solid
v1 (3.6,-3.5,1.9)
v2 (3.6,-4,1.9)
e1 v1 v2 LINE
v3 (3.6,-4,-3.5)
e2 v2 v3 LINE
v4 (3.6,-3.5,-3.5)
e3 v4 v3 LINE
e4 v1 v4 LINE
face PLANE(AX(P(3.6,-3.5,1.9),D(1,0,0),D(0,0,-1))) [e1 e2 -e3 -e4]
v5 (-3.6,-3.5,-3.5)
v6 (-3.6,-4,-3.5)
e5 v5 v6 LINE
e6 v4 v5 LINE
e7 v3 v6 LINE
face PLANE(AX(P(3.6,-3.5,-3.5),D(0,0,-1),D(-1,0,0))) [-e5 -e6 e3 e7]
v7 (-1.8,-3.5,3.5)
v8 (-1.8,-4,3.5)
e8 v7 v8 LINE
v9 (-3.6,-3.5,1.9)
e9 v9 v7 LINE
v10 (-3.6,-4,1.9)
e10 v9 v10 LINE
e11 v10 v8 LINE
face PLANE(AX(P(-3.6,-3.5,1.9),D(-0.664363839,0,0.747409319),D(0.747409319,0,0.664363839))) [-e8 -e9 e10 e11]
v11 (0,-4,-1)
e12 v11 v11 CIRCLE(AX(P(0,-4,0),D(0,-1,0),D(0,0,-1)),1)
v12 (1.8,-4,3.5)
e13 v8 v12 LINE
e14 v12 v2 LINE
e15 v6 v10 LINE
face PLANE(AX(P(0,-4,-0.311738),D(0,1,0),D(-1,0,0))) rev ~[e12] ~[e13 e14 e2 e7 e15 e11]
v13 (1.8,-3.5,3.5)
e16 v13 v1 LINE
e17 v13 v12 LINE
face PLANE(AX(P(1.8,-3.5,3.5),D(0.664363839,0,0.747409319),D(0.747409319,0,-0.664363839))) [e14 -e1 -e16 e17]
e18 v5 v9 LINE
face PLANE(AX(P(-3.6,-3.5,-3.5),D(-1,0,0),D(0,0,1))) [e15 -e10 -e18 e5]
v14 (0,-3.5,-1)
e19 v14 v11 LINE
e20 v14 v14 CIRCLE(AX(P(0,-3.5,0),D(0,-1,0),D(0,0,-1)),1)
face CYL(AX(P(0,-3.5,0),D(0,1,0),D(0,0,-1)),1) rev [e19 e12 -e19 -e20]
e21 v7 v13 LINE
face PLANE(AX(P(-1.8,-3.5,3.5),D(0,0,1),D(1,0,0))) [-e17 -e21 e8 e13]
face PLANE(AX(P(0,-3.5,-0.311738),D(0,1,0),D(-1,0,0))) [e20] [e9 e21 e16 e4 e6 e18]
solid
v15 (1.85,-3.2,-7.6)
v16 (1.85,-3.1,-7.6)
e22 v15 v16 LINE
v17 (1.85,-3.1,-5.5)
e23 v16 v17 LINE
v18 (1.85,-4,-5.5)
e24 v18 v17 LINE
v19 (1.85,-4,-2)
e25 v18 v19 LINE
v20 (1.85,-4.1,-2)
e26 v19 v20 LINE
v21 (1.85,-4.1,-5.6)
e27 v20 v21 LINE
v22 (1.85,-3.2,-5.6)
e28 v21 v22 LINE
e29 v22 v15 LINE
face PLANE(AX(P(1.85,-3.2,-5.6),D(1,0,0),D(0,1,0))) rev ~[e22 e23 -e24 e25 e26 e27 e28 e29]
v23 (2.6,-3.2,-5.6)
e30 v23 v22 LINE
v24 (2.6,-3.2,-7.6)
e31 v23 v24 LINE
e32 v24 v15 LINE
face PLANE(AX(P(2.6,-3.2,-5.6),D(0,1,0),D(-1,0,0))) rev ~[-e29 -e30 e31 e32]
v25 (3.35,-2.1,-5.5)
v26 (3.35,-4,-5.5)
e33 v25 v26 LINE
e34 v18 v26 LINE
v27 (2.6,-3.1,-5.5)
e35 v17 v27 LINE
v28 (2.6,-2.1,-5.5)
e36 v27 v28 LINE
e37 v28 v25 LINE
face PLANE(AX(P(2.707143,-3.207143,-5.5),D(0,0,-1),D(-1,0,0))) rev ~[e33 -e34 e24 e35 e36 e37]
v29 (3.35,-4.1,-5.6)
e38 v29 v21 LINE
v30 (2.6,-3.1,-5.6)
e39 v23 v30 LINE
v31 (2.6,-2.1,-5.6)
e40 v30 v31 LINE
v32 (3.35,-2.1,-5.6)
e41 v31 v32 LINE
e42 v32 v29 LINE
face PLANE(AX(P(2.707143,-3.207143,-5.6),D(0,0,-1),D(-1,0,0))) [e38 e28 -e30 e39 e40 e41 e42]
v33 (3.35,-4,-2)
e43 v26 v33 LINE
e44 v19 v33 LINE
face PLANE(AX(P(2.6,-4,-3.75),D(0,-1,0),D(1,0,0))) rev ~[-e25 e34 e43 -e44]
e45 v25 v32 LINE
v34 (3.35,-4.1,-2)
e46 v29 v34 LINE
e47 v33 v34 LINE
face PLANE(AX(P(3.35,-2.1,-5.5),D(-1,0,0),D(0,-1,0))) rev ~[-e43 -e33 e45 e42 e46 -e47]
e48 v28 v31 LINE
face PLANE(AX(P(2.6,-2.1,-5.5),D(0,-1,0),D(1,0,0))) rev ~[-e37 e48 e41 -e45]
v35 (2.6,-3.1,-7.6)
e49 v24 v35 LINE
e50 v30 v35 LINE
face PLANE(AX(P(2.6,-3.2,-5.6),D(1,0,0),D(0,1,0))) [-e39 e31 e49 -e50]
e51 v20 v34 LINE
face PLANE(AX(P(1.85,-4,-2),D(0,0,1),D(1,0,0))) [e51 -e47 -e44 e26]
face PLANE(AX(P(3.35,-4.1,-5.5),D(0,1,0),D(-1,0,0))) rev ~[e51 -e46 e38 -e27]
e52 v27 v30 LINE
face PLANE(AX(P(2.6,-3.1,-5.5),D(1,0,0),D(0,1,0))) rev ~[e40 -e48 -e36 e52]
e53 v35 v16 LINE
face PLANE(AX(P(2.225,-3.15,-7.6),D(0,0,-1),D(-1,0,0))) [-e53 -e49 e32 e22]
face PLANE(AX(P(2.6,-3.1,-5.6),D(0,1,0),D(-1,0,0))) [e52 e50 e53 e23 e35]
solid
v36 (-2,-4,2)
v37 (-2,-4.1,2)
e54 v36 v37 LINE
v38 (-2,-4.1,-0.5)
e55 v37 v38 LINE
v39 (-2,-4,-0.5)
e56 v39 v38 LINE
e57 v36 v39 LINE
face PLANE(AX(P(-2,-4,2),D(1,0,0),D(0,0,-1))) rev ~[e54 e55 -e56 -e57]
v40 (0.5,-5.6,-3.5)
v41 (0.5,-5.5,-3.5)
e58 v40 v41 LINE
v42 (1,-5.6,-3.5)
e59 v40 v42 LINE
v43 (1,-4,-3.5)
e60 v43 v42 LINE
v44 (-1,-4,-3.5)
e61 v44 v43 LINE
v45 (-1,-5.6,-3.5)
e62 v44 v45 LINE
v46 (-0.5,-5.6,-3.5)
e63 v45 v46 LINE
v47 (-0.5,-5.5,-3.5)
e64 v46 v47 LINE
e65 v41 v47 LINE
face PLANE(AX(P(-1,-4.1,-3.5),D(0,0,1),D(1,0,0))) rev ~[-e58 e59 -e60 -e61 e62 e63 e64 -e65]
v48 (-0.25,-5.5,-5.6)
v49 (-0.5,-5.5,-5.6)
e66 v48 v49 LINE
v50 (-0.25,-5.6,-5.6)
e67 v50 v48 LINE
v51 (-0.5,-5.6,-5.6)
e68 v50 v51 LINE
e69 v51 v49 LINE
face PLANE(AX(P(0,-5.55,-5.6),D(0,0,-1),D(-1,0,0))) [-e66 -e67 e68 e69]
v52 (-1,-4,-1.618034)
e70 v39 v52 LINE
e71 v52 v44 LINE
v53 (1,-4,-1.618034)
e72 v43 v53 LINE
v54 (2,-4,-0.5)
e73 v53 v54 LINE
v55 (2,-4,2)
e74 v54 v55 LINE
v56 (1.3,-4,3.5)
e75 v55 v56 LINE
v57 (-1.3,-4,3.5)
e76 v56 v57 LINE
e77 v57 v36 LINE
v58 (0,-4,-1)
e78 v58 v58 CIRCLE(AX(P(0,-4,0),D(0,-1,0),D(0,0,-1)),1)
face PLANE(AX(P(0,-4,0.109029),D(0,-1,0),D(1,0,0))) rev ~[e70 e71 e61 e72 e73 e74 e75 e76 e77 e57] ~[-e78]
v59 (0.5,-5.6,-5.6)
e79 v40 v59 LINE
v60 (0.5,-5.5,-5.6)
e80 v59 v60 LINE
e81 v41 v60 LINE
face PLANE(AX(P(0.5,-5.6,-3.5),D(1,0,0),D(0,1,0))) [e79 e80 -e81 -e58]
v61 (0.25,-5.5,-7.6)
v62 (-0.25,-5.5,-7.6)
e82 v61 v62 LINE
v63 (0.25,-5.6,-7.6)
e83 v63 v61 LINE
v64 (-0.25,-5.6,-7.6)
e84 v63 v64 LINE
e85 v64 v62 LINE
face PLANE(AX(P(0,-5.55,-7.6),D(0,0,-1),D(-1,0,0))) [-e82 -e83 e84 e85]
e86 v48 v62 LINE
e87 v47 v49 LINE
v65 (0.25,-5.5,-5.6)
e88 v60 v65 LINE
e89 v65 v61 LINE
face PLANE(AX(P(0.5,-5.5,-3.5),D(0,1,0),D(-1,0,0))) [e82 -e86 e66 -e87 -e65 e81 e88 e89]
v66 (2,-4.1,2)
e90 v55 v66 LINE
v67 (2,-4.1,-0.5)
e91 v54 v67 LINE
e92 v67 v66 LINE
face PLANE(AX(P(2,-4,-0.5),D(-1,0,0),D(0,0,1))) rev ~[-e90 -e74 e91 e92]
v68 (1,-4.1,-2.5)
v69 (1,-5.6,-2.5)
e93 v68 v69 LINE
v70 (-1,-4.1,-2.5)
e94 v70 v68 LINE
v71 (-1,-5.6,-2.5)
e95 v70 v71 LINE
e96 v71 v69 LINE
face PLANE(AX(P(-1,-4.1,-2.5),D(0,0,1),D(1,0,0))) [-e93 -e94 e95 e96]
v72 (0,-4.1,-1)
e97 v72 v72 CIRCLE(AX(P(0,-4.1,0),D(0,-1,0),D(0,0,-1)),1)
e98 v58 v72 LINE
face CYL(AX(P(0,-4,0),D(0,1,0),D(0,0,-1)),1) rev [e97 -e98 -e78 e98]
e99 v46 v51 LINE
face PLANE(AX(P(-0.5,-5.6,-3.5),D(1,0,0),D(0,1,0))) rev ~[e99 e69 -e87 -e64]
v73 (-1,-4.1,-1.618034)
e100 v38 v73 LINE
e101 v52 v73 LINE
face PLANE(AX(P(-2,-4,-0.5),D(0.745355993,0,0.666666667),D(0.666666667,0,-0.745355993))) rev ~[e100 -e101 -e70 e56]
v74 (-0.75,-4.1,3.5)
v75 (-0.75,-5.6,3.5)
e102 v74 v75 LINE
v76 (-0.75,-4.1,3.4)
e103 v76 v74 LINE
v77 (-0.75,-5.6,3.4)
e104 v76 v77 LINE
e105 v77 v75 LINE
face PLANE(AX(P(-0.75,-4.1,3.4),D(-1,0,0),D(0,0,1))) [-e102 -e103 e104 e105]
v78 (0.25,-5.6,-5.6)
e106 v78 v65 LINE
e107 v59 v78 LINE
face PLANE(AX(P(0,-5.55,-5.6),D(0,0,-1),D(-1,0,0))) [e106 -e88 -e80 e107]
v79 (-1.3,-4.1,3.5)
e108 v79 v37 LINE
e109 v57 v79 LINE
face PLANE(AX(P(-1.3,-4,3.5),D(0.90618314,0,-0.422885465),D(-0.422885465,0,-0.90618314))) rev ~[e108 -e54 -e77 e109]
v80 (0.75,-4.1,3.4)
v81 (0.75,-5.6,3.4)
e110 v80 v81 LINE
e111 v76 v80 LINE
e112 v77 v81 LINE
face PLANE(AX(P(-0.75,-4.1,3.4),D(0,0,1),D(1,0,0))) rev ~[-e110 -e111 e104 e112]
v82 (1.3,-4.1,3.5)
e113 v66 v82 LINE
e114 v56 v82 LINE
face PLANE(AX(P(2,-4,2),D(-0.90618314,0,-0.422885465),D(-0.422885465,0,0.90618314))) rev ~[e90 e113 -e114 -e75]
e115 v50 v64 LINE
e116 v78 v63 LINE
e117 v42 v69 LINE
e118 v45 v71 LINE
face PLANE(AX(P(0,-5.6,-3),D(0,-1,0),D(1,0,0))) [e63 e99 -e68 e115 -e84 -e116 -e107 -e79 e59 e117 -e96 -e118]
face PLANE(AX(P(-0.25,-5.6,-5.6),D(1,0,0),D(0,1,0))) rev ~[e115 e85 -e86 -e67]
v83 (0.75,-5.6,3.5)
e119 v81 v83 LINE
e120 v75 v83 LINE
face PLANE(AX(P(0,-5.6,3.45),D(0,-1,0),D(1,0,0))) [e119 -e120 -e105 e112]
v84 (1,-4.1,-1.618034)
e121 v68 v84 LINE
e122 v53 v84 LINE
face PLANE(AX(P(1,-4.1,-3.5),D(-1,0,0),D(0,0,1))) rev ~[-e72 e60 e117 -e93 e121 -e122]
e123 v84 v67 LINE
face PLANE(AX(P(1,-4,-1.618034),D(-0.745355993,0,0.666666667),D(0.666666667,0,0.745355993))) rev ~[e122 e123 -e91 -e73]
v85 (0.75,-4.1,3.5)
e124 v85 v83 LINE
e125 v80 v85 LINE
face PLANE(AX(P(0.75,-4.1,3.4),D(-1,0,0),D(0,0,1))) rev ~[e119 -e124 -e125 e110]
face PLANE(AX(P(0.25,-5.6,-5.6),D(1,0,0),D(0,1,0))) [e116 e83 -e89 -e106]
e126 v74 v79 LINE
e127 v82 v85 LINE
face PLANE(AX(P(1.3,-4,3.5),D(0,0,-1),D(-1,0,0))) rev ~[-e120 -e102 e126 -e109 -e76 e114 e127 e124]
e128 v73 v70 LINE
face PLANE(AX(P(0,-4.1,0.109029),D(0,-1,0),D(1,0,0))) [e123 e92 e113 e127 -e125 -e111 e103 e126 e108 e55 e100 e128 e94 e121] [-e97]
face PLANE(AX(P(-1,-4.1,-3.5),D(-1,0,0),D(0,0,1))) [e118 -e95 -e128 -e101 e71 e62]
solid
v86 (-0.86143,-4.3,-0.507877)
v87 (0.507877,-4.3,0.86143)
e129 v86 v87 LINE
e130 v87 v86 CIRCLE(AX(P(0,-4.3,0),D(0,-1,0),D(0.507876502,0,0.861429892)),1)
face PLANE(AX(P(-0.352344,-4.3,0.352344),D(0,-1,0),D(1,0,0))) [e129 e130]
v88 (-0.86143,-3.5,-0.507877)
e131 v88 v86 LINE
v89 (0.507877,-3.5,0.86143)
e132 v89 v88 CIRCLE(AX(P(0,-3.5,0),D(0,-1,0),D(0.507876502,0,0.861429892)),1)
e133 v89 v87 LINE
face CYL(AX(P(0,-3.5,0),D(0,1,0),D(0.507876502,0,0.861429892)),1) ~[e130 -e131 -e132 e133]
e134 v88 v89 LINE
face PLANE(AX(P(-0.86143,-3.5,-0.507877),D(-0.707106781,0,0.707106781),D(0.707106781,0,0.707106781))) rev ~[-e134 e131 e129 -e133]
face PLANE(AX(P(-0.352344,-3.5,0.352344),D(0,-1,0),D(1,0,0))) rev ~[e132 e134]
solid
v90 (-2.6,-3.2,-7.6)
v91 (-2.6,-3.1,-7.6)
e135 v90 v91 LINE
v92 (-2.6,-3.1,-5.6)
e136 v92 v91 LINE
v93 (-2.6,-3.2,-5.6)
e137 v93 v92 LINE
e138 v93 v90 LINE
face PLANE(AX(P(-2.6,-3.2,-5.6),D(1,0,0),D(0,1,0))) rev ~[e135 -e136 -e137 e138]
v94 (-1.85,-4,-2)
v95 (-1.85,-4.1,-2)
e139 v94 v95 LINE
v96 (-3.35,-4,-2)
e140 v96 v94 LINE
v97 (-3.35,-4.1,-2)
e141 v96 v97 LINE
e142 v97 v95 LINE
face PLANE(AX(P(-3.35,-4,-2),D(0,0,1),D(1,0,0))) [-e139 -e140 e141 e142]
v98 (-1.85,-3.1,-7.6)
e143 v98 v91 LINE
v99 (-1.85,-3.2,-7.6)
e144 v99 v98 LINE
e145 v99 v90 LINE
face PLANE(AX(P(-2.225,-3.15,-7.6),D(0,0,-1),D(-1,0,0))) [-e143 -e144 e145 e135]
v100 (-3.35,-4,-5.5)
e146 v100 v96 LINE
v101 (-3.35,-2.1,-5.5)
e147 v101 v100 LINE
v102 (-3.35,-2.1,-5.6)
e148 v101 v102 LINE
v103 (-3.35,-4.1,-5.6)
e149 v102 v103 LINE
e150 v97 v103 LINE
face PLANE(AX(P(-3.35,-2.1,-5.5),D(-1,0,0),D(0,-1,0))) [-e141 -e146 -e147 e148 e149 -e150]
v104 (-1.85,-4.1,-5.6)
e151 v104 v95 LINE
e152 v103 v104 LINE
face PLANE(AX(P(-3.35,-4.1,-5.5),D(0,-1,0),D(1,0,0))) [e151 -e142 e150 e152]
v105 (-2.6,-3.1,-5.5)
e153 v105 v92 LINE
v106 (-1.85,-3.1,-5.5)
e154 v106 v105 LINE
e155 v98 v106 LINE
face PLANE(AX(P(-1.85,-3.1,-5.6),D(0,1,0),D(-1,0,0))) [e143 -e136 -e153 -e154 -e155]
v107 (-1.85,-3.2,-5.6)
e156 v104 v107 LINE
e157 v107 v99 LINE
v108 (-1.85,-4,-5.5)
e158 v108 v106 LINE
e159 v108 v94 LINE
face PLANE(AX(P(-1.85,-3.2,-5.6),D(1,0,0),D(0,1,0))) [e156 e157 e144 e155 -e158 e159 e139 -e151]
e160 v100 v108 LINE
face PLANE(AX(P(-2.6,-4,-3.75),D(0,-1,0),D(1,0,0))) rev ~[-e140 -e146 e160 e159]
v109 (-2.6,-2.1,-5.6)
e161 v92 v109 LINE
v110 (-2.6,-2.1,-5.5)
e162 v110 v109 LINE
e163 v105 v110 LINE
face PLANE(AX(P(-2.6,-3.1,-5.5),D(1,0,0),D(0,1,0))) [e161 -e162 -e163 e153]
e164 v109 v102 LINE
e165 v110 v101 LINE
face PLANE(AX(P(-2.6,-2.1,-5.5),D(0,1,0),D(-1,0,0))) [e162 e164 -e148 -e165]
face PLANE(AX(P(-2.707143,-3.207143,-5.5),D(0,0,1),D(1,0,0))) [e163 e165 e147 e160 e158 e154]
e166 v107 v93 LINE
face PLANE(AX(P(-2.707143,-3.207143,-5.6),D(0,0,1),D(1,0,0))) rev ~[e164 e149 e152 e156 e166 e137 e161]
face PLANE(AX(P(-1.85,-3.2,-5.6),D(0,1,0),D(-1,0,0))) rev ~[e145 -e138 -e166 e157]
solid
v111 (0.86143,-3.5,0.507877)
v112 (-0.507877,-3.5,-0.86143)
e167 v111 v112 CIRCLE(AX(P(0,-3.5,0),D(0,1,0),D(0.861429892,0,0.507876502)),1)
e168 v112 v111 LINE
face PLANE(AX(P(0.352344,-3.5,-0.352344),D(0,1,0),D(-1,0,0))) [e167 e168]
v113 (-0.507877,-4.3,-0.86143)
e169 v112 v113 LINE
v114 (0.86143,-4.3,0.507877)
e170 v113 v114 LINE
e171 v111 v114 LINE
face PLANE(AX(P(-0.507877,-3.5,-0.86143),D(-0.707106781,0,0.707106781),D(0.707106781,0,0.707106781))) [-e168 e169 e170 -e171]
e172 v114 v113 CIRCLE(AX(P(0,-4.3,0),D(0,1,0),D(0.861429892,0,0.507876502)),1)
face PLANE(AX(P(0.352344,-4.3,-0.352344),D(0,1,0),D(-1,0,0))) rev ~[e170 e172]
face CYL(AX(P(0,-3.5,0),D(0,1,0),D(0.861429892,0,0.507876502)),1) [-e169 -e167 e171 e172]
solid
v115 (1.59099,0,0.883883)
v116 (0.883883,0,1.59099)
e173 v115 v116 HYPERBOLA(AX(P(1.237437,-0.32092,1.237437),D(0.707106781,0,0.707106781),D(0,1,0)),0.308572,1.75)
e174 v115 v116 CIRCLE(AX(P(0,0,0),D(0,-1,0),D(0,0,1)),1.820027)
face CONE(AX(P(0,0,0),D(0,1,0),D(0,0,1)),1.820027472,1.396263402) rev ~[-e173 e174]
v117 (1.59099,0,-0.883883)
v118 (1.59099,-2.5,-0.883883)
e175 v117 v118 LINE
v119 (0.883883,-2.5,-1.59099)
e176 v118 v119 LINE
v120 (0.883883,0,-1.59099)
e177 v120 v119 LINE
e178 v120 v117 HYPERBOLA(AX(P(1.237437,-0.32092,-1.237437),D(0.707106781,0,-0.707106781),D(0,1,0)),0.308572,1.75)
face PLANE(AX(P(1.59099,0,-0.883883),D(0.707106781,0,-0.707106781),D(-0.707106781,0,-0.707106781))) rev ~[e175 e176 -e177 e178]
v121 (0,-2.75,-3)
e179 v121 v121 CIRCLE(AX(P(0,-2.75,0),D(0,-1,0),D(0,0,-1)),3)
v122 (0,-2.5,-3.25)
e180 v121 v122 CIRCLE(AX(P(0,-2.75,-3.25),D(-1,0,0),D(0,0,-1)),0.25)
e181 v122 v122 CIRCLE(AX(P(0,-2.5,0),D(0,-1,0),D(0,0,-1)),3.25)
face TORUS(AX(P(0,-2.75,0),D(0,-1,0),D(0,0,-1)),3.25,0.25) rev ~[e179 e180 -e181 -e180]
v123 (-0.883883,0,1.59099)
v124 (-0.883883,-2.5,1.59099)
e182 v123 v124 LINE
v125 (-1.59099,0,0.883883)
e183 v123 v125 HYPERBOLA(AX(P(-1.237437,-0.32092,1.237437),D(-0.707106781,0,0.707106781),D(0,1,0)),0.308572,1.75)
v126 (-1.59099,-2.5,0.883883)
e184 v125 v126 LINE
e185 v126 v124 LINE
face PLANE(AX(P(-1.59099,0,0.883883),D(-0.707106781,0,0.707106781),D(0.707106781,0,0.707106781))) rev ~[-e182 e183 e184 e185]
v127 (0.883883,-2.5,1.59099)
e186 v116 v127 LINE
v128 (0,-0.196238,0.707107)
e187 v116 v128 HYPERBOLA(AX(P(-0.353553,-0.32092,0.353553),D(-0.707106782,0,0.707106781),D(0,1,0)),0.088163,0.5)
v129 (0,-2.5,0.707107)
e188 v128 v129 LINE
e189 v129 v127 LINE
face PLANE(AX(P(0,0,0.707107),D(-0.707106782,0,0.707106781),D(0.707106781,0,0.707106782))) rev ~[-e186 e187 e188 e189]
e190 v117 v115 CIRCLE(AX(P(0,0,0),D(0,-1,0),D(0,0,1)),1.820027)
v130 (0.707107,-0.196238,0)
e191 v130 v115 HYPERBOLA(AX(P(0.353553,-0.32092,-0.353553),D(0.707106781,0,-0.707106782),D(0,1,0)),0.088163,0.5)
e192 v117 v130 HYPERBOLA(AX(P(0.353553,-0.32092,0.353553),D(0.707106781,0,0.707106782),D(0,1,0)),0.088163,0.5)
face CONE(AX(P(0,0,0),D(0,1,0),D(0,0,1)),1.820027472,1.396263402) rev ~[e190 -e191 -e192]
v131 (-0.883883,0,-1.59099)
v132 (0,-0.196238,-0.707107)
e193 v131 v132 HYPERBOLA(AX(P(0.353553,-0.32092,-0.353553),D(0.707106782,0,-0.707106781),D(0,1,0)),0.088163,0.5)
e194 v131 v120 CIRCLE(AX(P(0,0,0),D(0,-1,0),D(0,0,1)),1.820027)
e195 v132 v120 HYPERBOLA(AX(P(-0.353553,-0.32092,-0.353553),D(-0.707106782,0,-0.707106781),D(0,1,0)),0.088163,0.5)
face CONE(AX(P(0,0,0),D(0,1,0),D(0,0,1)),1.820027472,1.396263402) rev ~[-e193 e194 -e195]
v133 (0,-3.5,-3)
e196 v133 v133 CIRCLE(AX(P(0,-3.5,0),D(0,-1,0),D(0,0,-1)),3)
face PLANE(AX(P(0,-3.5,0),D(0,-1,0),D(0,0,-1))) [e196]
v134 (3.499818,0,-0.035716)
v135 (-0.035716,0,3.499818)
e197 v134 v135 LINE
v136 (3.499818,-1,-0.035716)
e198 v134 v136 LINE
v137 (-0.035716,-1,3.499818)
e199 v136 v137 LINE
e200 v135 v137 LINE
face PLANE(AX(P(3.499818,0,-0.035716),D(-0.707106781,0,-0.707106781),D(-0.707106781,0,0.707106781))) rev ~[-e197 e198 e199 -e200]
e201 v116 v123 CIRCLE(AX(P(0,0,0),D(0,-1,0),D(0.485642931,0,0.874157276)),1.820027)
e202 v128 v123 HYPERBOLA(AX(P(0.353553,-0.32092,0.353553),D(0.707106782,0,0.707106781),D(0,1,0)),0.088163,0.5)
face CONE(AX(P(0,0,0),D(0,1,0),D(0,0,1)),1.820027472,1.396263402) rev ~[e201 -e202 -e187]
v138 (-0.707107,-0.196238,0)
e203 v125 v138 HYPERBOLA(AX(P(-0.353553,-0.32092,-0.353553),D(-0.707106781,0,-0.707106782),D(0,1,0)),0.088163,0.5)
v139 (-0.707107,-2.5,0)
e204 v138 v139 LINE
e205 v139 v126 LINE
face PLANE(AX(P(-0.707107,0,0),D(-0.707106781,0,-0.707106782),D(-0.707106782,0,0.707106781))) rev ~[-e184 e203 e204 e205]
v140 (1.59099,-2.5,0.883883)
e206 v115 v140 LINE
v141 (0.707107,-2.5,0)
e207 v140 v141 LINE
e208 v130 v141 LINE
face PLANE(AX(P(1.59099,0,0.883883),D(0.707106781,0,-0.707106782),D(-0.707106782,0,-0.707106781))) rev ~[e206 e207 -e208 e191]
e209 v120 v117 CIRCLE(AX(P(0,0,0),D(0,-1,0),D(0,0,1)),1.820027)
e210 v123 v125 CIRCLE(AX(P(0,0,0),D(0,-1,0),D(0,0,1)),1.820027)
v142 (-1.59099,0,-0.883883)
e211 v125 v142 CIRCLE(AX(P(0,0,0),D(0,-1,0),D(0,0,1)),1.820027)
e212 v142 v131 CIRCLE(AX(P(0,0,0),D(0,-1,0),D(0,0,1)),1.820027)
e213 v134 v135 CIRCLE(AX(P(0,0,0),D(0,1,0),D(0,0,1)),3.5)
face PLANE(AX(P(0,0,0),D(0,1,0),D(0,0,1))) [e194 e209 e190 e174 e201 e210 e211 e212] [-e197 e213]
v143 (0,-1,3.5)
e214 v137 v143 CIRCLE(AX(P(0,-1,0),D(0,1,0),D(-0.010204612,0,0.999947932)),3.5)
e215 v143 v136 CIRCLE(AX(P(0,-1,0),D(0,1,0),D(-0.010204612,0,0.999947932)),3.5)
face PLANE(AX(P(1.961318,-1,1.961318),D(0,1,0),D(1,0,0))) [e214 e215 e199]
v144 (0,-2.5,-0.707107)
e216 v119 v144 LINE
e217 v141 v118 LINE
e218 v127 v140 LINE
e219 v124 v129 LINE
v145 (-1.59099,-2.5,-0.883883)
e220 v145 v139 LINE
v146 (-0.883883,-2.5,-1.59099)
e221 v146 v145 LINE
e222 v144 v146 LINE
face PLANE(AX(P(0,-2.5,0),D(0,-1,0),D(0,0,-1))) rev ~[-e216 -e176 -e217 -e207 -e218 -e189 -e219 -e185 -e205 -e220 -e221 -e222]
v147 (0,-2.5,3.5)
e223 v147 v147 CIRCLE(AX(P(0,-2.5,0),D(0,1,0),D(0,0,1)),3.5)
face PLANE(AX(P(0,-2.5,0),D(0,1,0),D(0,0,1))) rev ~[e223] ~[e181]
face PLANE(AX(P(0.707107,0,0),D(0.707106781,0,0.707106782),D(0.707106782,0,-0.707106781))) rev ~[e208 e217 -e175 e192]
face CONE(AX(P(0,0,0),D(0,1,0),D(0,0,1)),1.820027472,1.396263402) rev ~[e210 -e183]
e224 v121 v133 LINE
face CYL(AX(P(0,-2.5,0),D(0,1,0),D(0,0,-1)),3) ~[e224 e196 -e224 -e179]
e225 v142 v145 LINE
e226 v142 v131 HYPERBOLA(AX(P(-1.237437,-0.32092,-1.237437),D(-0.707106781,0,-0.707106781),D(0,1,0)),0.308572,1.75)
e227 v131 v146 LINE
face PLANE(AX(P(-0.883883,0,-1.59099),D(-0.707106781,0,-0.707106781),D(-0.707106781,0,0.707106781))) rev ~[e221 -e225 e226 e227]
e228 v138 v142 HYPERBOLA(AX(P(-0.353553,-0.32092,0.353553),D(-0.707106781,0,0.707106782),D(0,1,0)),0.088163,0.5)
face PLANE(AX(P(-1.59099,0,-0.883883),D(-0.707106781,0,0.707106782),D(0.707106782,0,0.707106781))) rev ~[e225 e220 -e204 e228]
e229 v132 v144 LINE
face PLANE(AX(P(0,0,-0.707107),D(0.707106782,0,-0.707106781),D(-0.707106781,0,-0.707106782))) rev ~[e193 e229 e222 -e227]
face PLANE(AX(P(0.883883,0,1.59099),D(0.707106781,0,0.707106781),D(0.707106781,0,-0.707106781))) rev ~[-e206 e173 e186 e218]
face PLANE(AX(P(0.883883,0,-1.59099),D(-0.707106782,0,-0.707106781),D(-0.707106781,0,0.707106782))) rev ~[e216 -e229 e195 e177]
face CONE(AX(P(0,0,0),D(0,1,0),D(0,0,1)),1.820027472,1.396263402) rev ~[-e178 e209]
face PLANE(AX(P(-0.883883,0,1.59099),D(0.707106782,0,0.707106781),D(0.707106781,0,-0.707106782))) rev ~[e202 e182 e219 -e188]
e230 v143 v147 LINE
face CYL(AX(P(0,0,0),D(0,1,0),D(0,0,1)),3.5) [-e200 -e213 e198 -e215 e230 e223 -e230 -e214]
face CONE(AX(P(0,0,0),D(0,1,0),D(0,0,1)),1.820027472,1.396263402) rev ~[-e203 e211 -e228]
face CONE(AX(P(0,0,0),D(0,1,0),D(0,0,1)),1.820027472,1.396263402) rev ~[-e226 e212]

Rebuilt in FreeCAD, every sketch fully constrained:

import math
import FreeCAD as App
import Part
import Sketcher

V = App.Vector
Q = App.Units.Quantity


def edges_at(feature, points):
    """Names of the edges that pass closest to the given points."""
    edges = feature.Shape.Edges
    near = lambda p: min(range(len(edges)), key=lambda i: edges[i].distToShape(Part.Vertex(*p))[0])
    return sorted({f"Edge{near(p) + 1}" for p in points})


def add_polygon(sketch, points):
    """Adds a closed chain of lines whose ends are joined by coincident constraints."""
    first, n = sketch.GeometryCount, len(points)
    for a, b in zip(points, points[1:] + points[:1]):
        sketch.addGeometry(Part.LineSegment(App.Vector(*a, 0), App.Vector(*b, 0)), False)
    for i in range(n):
        sketch.addConstraint(Sketcher.Constraint("Coincident", first + i, 2, first + (i + 1) % n, 1))

doc = App.newDocument("Part")
body = doc.addObject("PartDesign::Body", "Body")

# Sketch on XZ plane
sketch1 = body.newObject("Sketcher::SketchObject", "Sketch")
sketch1.AttachmentSupport = (doc.getObject("XZ_Plane"), [""])
sketch1.MapMode = "FlatFace"
sketch1.addGeometry(Part.Circle(V(0, 0, 0), V(0, 0, 1), 3.5), False)  # 0
add_polygon(sketch1, [(0, -0.7), (0.9, -1.6), (1.6, -0.9), (0.7, 0), (1.6, 0.9), (0.9, 1.6), (0, 0.7), (-0.9, 1.6), (-1.6, 0.9), (-0.7, 0), (-1.6, -0.9), (-0.9, -1.6)])  # lines 1-12
sketch1.addConstraint(Sketcher.Constraint("Coincident", 0, 3, -1, 1))
sketch1.addConstraint(Sketcher.Constraint("Symmetric", 1, 2, 7, 2, -1, 1))
sketch1.addConstraint(Sketcher.Constraint("Symmetric", 2, 2, 8, 2, -1, 1))
sketch1.addConstraint(Sketcher.Constraint("Symmetric", 3, 2, 9, 2, -1, 1))
sketch1.addConstraint(Sketcher.Constraint("Symmetric", 4, 2, 10, 2, -1, 1))
sketch1.addConstraint(Sketcher.Constraint("Symmetric", 5, 2, 11, 2, -1, 1))
sketch1.addConstraint(Sketcher.Constraint("Symmetric", 6, 2, 12, 2, -1, 1))
sketch1.addConstraint(Sketcher.Constraint("Symmetric", 5, 2, 7, 2, -2))
sketch1.addConstraint(Sketcher.Constraint("Symmetric", 4, 2, 8, 2, -2))
sketch1.addConstraint(Sketcher.Constraint("PointOnObject", 3, 2, -1))
sketch1.addConstraint(Sketcher.Constraint("PointOnObject", 6, 2, -2))
sketch1.addConstraint(Sketcher.Constraint("Perpendicular", 1, 2))
sketch1.addConstraint(Sketcher.Constraint("Perpendicular", 2, 3))
sketch1.addConstraint(Sketcher.Constraint("Perpendicular", 3, 4))
sketch1.addConstraint(Sketcher.Constraint("Equal", 1, 3))
sketch1.addConstraint(Sketcher.Constraint("Diameter", 0, Q("7 mm")))
sketch1.addConstraint(Sketcher.Constraint("Distance", 2, Q("1 mm")))
sketch1.addConstraint(Sketcher.Constraint("Distance", 1, Q("1.25 mm")))
pad1 = body.newObject("PartDesign::Pad", "Pad")
pad1.Profile = sketch1
pad1.Length = 2.5

# Sketch on XZ plane
sketch2 = body.newObject("Sketcher::SketchObject", "Sketch001")
sketch2.AttachmentSupport = (doc.getObject("XZ_Plane"), [""])
sketch2.MapMode = "FlatFace"
sketch2.addGeometry(Part.LineSegment(V(3.5, 0, 0), V(0, 3.5, 0)), False)
sketch2.addGeometry(Part.ArcOfCircle(Part.Circle(V(0, 0, 0), V(0, 0, 1), 3.5), math.radians(-1), math.radians(91)), False)
sketch2.addConstraint(Sketcher.Constraint("Coincident", 0, 1, 1, 1))
sketch2.addConstraint(Sketcher.Constraint("Coincident", 1, 2, 0, 2))
sketch2.addConstraint(Sketcher.Constraint("Coincident", 1, 3, -1, 1))
sketch2.addConstraint(Sketcher.Constraint("Radius", 1, Q("3.5 mm")))
sketch2.addConstraint(Sketcher.Constraint("Angle", 0, Q("135 deg")))
sketch2.addConstraint(Sketcher.Constraint("Distance", 0, Q("5 mm")))
pocket1 = body.newObject("PartDesign::Pocket", "Pocket")
pocket1.Profile = sketch2
pocket1.Length = 1
pocket1.Reversed = True

# Sketch on YZ plane
sketch3 = body.newObject("Sketcher::SketchObject", "Sketch002")
sketch3.AttachmentSupport = (doc.getObject("YZ_Plane"), [""])
sketch3.MapMode = "FlatFace"
add_polygon(sketch3, [(0, 0), (0, 1.82), (-0.32, 0)])  # lines 0-2
sketch3.addConstraint(Sketcher.Constraint("Vertical", 0))
sketch3.addConstraint(Sketcher.Constraint("Horizontal", 2))
sketch3.addConstraint(Sketcher.Constraint("Coincident", 2, 2, -1, 1))
sketch3.addConstraint(Sketcher.Constraint("Angle", 1, Q("-100 deg")))
sketch3.addConstraint(Sketcher.Constraint("DistanceX", 2, 1, 2, 2, Q("0.32092 mm")))
groove = body.newObject("PartDesign::Groove", "Groove")
groove.Profile = sketch3
groove.ReferenceAxis = (sketch3, ["H_Axis"])
groove.Angle = 360

# Sketch on XZ plane
sketch4 = body.newObject("Sketcher::SketchObject", "Sketch003")
sketch4.AttachmentSupport = (doc.getObject("XZ_Plane"), [""])
sketch4.MapMode = "FlatFace"
sketch4.AttachmentOffset = App.Placement(V(0, 0, 2.5), App.Rotation())
sketch4.addGeometry(Part.Circle(V(0, 0, 0), V(0, 0, 1), 3), False)
sketch4.addConstraint(Sketcher.Constraint("Coincident", 0, 3, -1, 1))
sketch4.addConstraint(Sketcher.Constraint("Diameter", 0, Q("6 mm")))
pad2 = body.newObject("PartDesign::Pad", "Pad001")
pad2.Profile = sketch4
pad2.Length = 1
doc.recompute()

fillet = body.newObject("PartDesign::Fillet", "Fillet")
fillet.Base = (pad2, edges_at(pad2, [(0, -2.5, 3)]))
fillet.Radius = 0.25
body2 = doc.addObject("PartDesign::Body", "Body001")

# Sketch on XZ plane
sketch5 = body2.newObject("Sketcher::SketchObject", "Sketch004")
sketch5.AttachmentSupport = (doc.getObject("XZ_Plane001"), [""])
sketch5.MapMode = "FlatFace"
sketch5.AttachmentOffset = App.Placement(V(0, 0, 3.5), App.Rotation())
add_polygon(sketch5, [(3.6, 1.9), (1.8, 3.5), (-1.8, 3.5), (-3.6, 1.9), (-3.6, -3.5), (3.6, -3.5)])  # lines 0-5
sketch5.addGeometry(Part.Circle(V(0, 0, 0), V(0, 0, 1), 1), False)  # 6
sketch5.addConstraint(Sketcher.Constraint("Horizontal", 1))
sketch5.addConstraint(Sketcher.Constraint("Vertical", 3))
sketch5.addConstraint(Sketcher.Constraint("Horizontal", 4))
sketch5.addConstraint(Sketcher.Constraint("Vertical", 5))
sketch5.addConstraint(Sketcher.Constraint("Coincident", 6, 3, -1, 1))
sketch5.addConstraint(Sketcher.Constraint("Symmetric", 2, 2, 5, 2, -2))
sketch5.addConstraint(Sketcher.Constraint("Equal", 0, 2))
sketch5.addConstraint(Sketcher.Constraint("Diameter", 6, Q("2 mm")))
sketch5.addConstraint(Sketcher.Constraint("DistanceX", 1, 2, 1, 1, Q("3.6 mm")))
sketch5.addConstraint(Sketcher.Constraint("DistanceX", 4, 1, 4, 2, Q("7.2 mm")))
sketch5.addConstraint(Sketcher.Constraint("DistanceY", 3, 2, 3, 1, Q("5.4 mm")))
sketch5.addConstraint(Sketcher.Constraint("DistanceY", 3, 2, 1, 2, Q("7 mm")))
sketch5.addConstraint(Sketcher.Constraint("DistanceY", -1, 1, 0, 2, Q("3.5 mm")))
pad3 = body2.newObject("PartDesign::Pad", "Pad002")
pad3.Profile = sketch5
pad3.Length = 0.5
body3 = doc.addObject("PartDesign::Body", "Body002")

# Sketch on XZ plane
sketch6 = body3.newObject("Sketcher::SketchObject", "Sketch005")
sketch6.AttachmentSupport = (doc.getObject("XZ_Plane002"), [""])
sketch6.MapMode = "FlatFace"
sketch6.AttachmentOffset = App.Placement(V(0, 0, 4), App.Rotation())
add_polygon(sketch6, [(-1.3, 3.5), (-2, 2), (-2, -0.5), (-1, -1.6), (-1, -3.5), (1, -3.5), (1, -1.6), (2, -0.5), (2, 2), (1.3, 3.5)])  # lines 0-9
sketch6.addGeometry(Part.Circle(V(0, 0, 0), V(0, 0, 1), 1), False)  # 10
sketch6.addConstraint(Sketcher.Constraint("Vertical", 1))
sketch6.addConstraint(Sketcher.Constraint("Vertical", 3))
sketch6.addConstraint(Sketcher.Constraint("Horizontal", 4))
sketch6.addConstraint(Sketcher.Constraint("Vertical", 5))
sketch6.addConstraint(Sketcher.Constraint("Vertical", 7))
sketch6.addConstraint(Sketcher.Constraint("Horizontal", 9))
sketch6.addConstraint(Sketcher.Constraint("Coincident", 10, 3, -1, 1))
sketch6.addConstraint(Sketcher.Constraint("Symmetric", 2, 2, 5, 2, -2))
sketch6.addConstraint(Sketcher.Constraint("Symmetric", 1, 2, 6, 2, -2))
sketch6.addConstraint(Sketcher.Constraint("Horizontal", 0, 2, 7, 2))
sketch6.addConstraint(Sketcher.Constraint("Equal", 0, 8))
sketch6.addConstraint(Sketcher.Constraint("Diameter", 10, Q("2 mm")))
sketch6.addConstraint(Sketcher.Constraint("DistanceX", 4, 1, 4, 2, Q("2 mm")))
sketch6.addConstraint(Sketcher.Constraint("DistanceX", 9, 2, 9, 1, Q("2.6 mm")))
sketch6.addConstraint(Sketcher.Constraint("DistanceY", 1, 2, 1, 1, Q("2.5 mm")))
sketch6.addConstraint(Sketcher.Constraint("DistanceX", 0, 2, -1, 1, Q("2 mm")))
sketch6.addConstraint(Sketcher.Constraint("DistanceY", -1, 1, 0, 2, Q("2 mm")))
sketch6.addConstraint(Sketcher.Constraint("DistanceY", 3, 2, 1, 2, Q("3 mm")))
sketch6.addConstraint(Sketcher.Constraint("DistanceY", 6, 2, 8, 2, Q("4 mm")))
sketch6.addConstraint(Sketcher.Constraint("Distance", 2, Q("1.5 mm")))
pad4 = body3.newObject("PartDesign::Pad", "Pad003")
pad4.Profile = sketch6
pad4.Length = 0.1

# Sketch on XZ plane
sketch7 = body3.newObject("Sketcher::SketchObject", "Sketch006")
sketch7.AttachmentSupport = (doc.getObject("XZ_Plane002"), [""])
sketch7.MapMode = "FlatFace"
sketch7.AttachmentOffset = App.Placement(V(0, 0, 4.1), App.Rotation())
add_polygon(sketch7, [(-0.75, 3.5), (-0.75, 3.4), (0.75, 3.4), (0.75, 3.5)])  # lines 0-3
add_polygon(sketch7, [(-1, -2.5), (-1, -3.5), (1, -3.5), (1, -2.5)])  # lines 4-7
sketch7.addConstraint(Sketcher.Constraint("Vertical", 0))
sketch7.addConstraint(Sketcher.Constraint("Horizontal", 1))
sketch7.addConstraint(Sketcher.Constraint("Vertical", 2))
sketch7.addConstraint(Sketcher.Constraint("Horizontal", 3))
sketch7.addConstraint(Sketcher.Constraint("Vertical", 4))
sketch7.addConstraint(Sketcher.Constraint("Horizontal", 5))
sketch7.addConstraint(Sketcher.Constraint("Vertical", 6))
sketch7.addConstraint(Sketcher.Constraint("Horizontal", 7))
sketch7.addConstraint(Sketcher.Constraint("DistanceX", 5, 1, 5, 2, Q("2 mm")))
sketch7.addConstraint(Sketcher.Constraint("DistanceY", 4, 2, 4, 1, Q("1 mm")))
sketch7.addConstraint(Sketcher.Constraint("DistanceX", 1, 1, 1, 2, Q("1.5 mm")))
sketch7.addConstraint(Sketcher.Constraint("DistanceY", 0, 2, 0, 1, Q("0.1 mm")))
sketch7.addConstraint(Sketcher.Constraint("DistanceX", 4, 2, -1, 1, Q("1 mm")))
sketch7.addConstraint(Sketcher.Constraint("DistanceY", 4, 2, 3, 2, Q("7 mm")))
sketch7.addConstraint(Sketcher.Constraint("DistanceY", -1, 1, 0, 2, Q("3.4 mm")))
sketch7.addConstraint(Sketcher.Constraint("DistanceX", 0, 2, -1, 1, Q("0.75 mm")))
pad5 = body3.newObject("PartDesign::Pad", "Pad004")
pad5.Profile = sketch7
pad5.Length = 1.5

# Sketch on XY plane
sketch8 = body3.newObject("Sketcher::SketchObject", "Sketch007")
sketch8.AttachmentSupport = (doc.getObject("XY_Plane002"), [""])
sketch8.MapMode = "FlatFace"
sketch8.AttachmentOffset = App.Placement(V(0, 0, -3.5), App.Rotation())
add_polygon(sketch8, [(0.5, -5.5), (0.5, -5.6), (-0.5, -5.6), (-0.5, -5.5)])  # lines 0-3
sketch8.addConstraint(Sketcher.Constraint("Vertical", 0))
sketch8.addConstraint(Sketcher.Constraint("Horizontal", 1))
sketch8.addConstraint(Sketcher.Constraint("Vertical", 2))
sketch8.addConstraint(Sketcher.Constraint("Horizontal", 3))
sketch8.addConstraint(Sketcher.Constraint("DistanceX", 1, 2, 1, 1, Q("1 mm")))
sketch8.addConstraint(Sketcher.Constraint("DistanceY", 0, 2, 0, 1, Q("0.1 mm")))
sketch8.addConstraint(Sketcher.Constraint("DistanceX", -1, 1, 0, 2, Q("0.5 mm")))
sketch8.addConstraint(Sketcher.Constraint("DistanceY", 0, 2, -1, 1, Q("5.6 mm")))
pad6 = body3.newObject("PartDesign::Pad", "Pad005")
pad6.Profile = sketch8
pad6.Length = 2.1
pad6.Reversed = True

# Sketch on XY plane
sketch9 = body3.newObject("Sketcher::SketchObject", "Sketch008")
sketch9.AttachmentSupport = (doc.getObject("XY_Plane002"), [""])
sketch9.MapMode = "FlatFace"
sketch9.AttachmentOffset = App.Placement(V(0, 0, -5.6), App.Rotation())
add_polygon(sketch9, [(0.25, -5.5), (0.25, -5.6), (-0.25, -5.6), (-0.25, -5.5)])  # lines 0-3
sketch9.addConstraint(Sketcher.Constraint("Vertical", 0))
sketch9.addConstraint(Sketcher.Constraint("Horizontal", 1))
sketch9.addConstraint(Sketcher.Constraint("Vertical", 2))
sketch9.addConstraint(Sketcher.Constraint("Horizontal", 3))
sketch9.addConstraint(Sketcher.Constraint("DistanceX", 1, 2, 1, 1, Q("0.5 mm")))
sketch9.addConstraint(Sketcher.Constraint("DistanceY", 0, 2, 0, 1, Q("0.1 mm")))
sketch9.addConstraint(Sketcher.Constraint("DistanceY", 0, 2, -1, 1, Q("5.6 mm")))
sketch9.addConstraint(Sketcher.Constraint("DistanceX", -1, 1, 0, 2, Q("0.25 mm")))
pad7 = body3.newObject("PartDesign::Pad", "Pad006")
pad7.Profile = sketch9
pad7.Length = 2
pad7.Reversed = True
body4 = doc.addObject("PartDesign::Body", "Body003")

# Sketch on XZ plane
sketch10 = body4.newObject("Sketcher::SketchObject", "Sketch009")
sketch10.AttachmentSupport = (doc.getObject("XZ_Plane003"), [""])
sketch10.MapMode = "FlatFace"
sketch10.AttachmentOffset = App.Placement(V(0, 0, 4), App.Rotation())
add_polygon(sketch10, [(-3.4, -2), (-3.4, -5.5), (-1.9, -5.5), (-1.9, -2)])  # lines 0-3
sketch10.addConstraint(Sketcher.Constraint("Vertical", 0))
sketch10.addConstraint(Sketcher.Constraint("Horizontal", 1))
sketch10.addConstraint(Sketcher.Constraint("Vertical", 2))
sketch10.addConstraint(Sketcher.Constraint("Horizontal", 3))
sketch10.addConstraint(Sketcher.Constraint("DistanceX", 1, 1, 1, 2, Q("1.5 mm")))
sketch10.addConstraint(Sketcher.Constraint("DistanceY", 0, 2, 0, 1, Q("3.5 mm")))
sketch10.addConstraint(Sketcher.Constraint("DistanceY", 2, 2, -1, 1, Q("2 mm")))
sketch10.addConstraint(Sketcher.Constraint("DistanceX", 0, 2, -1, 1, Q("3.35 mm")))
pad8 = body4.newObject("PartDesign::Pad", "Pad007")
pad8.Profile = sketch10
pad8.Length = 0.1
body5 = doc.addObject("PartDesign::Body", "Body004")

# Sketch on XZ plane
sketch11 = body5.newObject("Sketcher::SketchObject", "Sketch010")
sketch11.AttachmentSupport = (doc.getObject("XZ_Plane004"), [""])
sketch11.MapMode = "FlatFace"
sketch11.AttachmentOffset = App.Placement(V(0, 0, 4), App.Rotation())
add_polygon(sketch11, [(1.9, -2), (1.9, -5.5), (3.4, -5.5), (3.4, -2)])  # lines 0-3
sketch11.addConstraint(Sketcher.Constraint("Vertical", 0))
sketch11.addConstraint(Sketcher.Constraint("Horizontal", 1))
sketch11.addConstraint(Sketcher.Constraint("Vertical", 2))
sketch11.addConstraint(Sketcher.Constraint("Horizontal", 3))
sketch11.addConstraint(Sketcher.Constraint("DistanceX", 1, 1, 1, 2, Q("1.5 mm")))
sketch11.addConstraint(Sketcher.Constraint("DistanceY", 0, 2, 0, 1, Q("3.5 mm")))
sketch11.addConstraint(Sketcher.Constraint("DistanceY", 2, 2, -1, 1, Q("2 mm")))
sketch11.addConstraint(Sketcher.Constraint("DistanceX", -1, 1, 0, 2, Q("1.85 mm")))
pad9 = body5.newObject("PartDesign::Pad", "Pad008")
pad9.Profile = sketch11
pad9.Length = 0.1
body4.AllowCompound = True
doc.recompute()

boolean = body4.newObject("PartDesign::Boolean", "Boolean")
boolean.Type = "Fuse"
boolean.addObjects([body5])

# Sketch on XY plane
sketch12 = body4.newObject("Sketcher::SketchObject", "Sketch011")
sketch12.AttachmentSupport = (doc.getObject("XY_Plane003"), [""])
sketch12.MapMode = "FlatFace"
sketch12.AttachmentOffset = App.Placement(V(0, 0, -5.5), App.Rotation())
add_polygon(sketch12, [(3.4, -4.1), (1.9, -4.1), (1.9, -3.1), (2.6, -3.1), (2.6, -2.1), (3.4, -2.1)])  # lines 0-5
add_polygon(sketch12, [(-1.9, -4.1), (-3.4, -4.1), (-3.4, -2.1), (-2.6, -2.1), (-2.6, -3.1), (-1.9, -3.1)])  # lines 6-11
sketch12.addConstraint(Sketcher.Constraint("Horizontal", 0))
sketch12.addConstraint(Sketcher.Constraint("Vertical", 1))
sketch12.addConstraint(Sketcher.Constraint("Horizontal", 2))
sketch12.addConstraint(Sketcher.Constraint("Vertical", 3))
sketch12.addConstraint(Sketcher.Constraint("Horizontal", 4))
sketch12.addConstraint(Sketcher.Constraint("Vertical", 5))
sketch12.addConstraint(Sketcher.Constraint("Horizontal", 6))
sketch12.addConstraint(Sketcher.Constraint("Vertical", 7))
sketch12.addConstraint(Sketcher.Constraint("Horizontal", 8))
sketch12.addConstraint(Sketcher.Constraint("Vertical", 9))
sketch12.addConstraint(Sketcher.Constraint("Horizontal", 10))
sketch12.addConstraint(Sketcher.Constraint("Vertical", 11))
sketch12.addConstraint(Sketcher.Constraint("Symmetric", 5, 2, 6, 2, -2))
sketch12.addConstraint(Sketcher.Constraint("Symmetric", 3, 2, 8, 2, -2))
sketch12.addConstraint(Sketcher.Constraint("Symmetric", 1, 2, 10, 2, -2))
sketch12.addConstraint(Sketcher.Constraint("Equal", 2, 4))
sketch12.addConstraint(Sketcher.Constraint("Equal", 1, 3))
sketch12.addConstraint(Sketcher.Constraint("DistanceY", 1, 1, 1, 2, Q("1 mm")))
sketch12.addConstraint(Sketcher.Constraint("DistanceX", 0, 2, 0, 1, Q("1.5 mm")))
sketch12.addConstraint(Sketcher.Constraint("DistanceY", 0, 2, -1, 1, Q("4.1 mm")))
sketch12.addConstraint(Sketcher.Constraint("DistanceX", -1, 1, 2, 2, Q("2.6 mm")))
pad10 = body4.newObject("PartDesign::Pad", "Pad009")
pad10.Profile = sketch12
pad10.Length = 0.1
pad10.Reversed = True

# Sketch on XY plane
sketch13 = body4.newObject("Sketcher::SketchObject", "Sketch012")
sketch13.AttachmentSupport = (doc.getObject("XY_Plane003"), [""])
sketch13.MapMode = "FlatFace"
sketch13.AttachmentOffset = App.Placement(V(0, 0, -5.6), App.Rotation())
add_polygon(sketch13, [(2.6, -3.1), (2.6, -3.2), (1.85, -3.2), (1.85, -3.1)])  # lines 0-3
add_polygon(sketch13, [(-1.85, -3.1), (-1.85, -3.2), (-2.6, -3.2), (-2.6, -3.1)])  # lines 4-7
sketch13.addConstraint(Sketcher.Constraint("Vertical", 0))
sketch13.addConstraint(Sketcher.Constraint("Horizontal", 1))
sketch13.addConstraint(Sketcher.Constraint("Vertical", 2))
sketch13.addConstraint(Sketcher.Constraint("Horizontal", 3))
sketch13.addConstraint(Sketcher.Constraint("Vertical", 4))
sketch13.addConstraint(Sketcher.Constraint("Horizontal", 5))
sketch13.addConstraint(Sketcher.Constraint("Vertical", 6))
sketch13.addConstraint(Sketcher.Constraint("Horizontal", 7))
sketch13.addConstraint(Sketcher.Constraint("Symmetric", 1, 2, 4, 2, -2))
sketch13.addConstraint(Sketcher.Constraint("Symmetric", 3, 2, 6, 2, -2))
sketch13.addConstraint(Sketcher.Constraint("DistanceY", 0, 2, 0, 1, Q("0.1 mm")))
sketch13.addConstraint(Sketcher.Constraint("DistanceX", 1, 2, 1, 1, Q("0.75 mm")))
sketch13.addConstraint(Sketcher.Constraint("DistanceX", -1, 1, 0, 2, Q("2.6 mm")))
sketch13.addConstraint(Sketcher.Constraint("DistanceY", 0, 2, -1, 1, Q("3.2 mm")))
pad11 = body4.newObject("PartDesign::Pad", "Pad010")
pad11.Profile = sketch13
pad11.Length = 2
pad11.Reversed = True
body6 = doc.addObject("PartDesign::Body", "Body005")

# Sketch on XZ plane
sketch14 = body6.newObject("Sketcher::SketchObject", "Sketch013")
sketch14.AttachmentSupport = (doc.getObject("XZ_Plane005"), [""])
sketch14.MapMode = "FlatFace"
sketch14.AttachmentOffset = App.Placement(V(0, 0, 3.5), App.Rotation())
sketch14.addGeometry(Part.LineSegment(V(0.9, 0.5, 0), V(-0.5, -0.9, 0)), False)
sketch14.addGeometry(Part.ArcOfCircle(Part.Circle(V(0, 0, 0), V(0, 0, 1), 1), math.radians(-121), math.radians(31)), False)
sketch14.addConstraint(Sketcher.Constraint("Coincident", 0, 1, 1, 2))
sketch14.addConstraint(Sketcher.Constraint("Coincident", 1, 1, 0, 2))
sketch14.addConstraint(Sketcher.Constraint("Coincident", 1, 3, -1, 1))
sketch14.addConstraint(Sketcher.Constraint("Radius", 1, Q("1 mm")))
sketch14.addConstraint(Sketcher.Constraint("Angle", 0, Q("-135 deg")))
sketch14.addConstraint(Sketcher.Constraint("Distance", 0, Q("1.936492 mm")))
pad12 = body6.newObject("PartDesign::Pad", "Pad011")
pad12.Profile = sketch14
pad12.Length = 0.8
body7 = doc.addObject("PartDesign::Body", "Body006")

# Sketch on XZ plane
sketch15 = body7.newObject("Sketcher::SketchObject", "Sketch014")
sketch15.AttachmentSupport = (doc.getObject("XZ_Plane006"), [""])
sketch15.MapMode = "FlatFace"
sketch15.AttachmentOffset = App.Placement(V(0, 0, 3.5), App.Rotation())
sketch15.addGeometry(Part.LineSegment(V(-0.9, -0.5, 0), V(0.5, 0.9, 0)), False)
sketch15.addGeometry(Part.ArcOfCircle(Part.Circle(V(0, 0, 0), V(0, 0, 1), 1), math.radians(59), math.radians(211)), False)
sketch15.addConstraint(Sketcher.Constraint("Coincident", 0, 1, 1, 2))
sketch15.addConstraint(Sketcher.Constraint("Coincident", 1, 1, 0, 2))
sketch15.addConstraint(Sketcher.Constraint("Coincident", 1, 3, -1, 1))
sketch15.addConstraint(Sketcher.Constraint("Radius", 1, Q("1 mm")))
sketch15.addConstraint(Sketcher.Constraint("Angle", 0, Q("45 deg")))
sketch15.addConstraint(Sketcher.Constraint("Distance", 0, Q("1.936492 mm")))
pad13 = body7.newObject("PartDesign::Pad", "Pad012")
pad13.Profile = sketch15
pad13.Length = 0.8

doc.recompute()
